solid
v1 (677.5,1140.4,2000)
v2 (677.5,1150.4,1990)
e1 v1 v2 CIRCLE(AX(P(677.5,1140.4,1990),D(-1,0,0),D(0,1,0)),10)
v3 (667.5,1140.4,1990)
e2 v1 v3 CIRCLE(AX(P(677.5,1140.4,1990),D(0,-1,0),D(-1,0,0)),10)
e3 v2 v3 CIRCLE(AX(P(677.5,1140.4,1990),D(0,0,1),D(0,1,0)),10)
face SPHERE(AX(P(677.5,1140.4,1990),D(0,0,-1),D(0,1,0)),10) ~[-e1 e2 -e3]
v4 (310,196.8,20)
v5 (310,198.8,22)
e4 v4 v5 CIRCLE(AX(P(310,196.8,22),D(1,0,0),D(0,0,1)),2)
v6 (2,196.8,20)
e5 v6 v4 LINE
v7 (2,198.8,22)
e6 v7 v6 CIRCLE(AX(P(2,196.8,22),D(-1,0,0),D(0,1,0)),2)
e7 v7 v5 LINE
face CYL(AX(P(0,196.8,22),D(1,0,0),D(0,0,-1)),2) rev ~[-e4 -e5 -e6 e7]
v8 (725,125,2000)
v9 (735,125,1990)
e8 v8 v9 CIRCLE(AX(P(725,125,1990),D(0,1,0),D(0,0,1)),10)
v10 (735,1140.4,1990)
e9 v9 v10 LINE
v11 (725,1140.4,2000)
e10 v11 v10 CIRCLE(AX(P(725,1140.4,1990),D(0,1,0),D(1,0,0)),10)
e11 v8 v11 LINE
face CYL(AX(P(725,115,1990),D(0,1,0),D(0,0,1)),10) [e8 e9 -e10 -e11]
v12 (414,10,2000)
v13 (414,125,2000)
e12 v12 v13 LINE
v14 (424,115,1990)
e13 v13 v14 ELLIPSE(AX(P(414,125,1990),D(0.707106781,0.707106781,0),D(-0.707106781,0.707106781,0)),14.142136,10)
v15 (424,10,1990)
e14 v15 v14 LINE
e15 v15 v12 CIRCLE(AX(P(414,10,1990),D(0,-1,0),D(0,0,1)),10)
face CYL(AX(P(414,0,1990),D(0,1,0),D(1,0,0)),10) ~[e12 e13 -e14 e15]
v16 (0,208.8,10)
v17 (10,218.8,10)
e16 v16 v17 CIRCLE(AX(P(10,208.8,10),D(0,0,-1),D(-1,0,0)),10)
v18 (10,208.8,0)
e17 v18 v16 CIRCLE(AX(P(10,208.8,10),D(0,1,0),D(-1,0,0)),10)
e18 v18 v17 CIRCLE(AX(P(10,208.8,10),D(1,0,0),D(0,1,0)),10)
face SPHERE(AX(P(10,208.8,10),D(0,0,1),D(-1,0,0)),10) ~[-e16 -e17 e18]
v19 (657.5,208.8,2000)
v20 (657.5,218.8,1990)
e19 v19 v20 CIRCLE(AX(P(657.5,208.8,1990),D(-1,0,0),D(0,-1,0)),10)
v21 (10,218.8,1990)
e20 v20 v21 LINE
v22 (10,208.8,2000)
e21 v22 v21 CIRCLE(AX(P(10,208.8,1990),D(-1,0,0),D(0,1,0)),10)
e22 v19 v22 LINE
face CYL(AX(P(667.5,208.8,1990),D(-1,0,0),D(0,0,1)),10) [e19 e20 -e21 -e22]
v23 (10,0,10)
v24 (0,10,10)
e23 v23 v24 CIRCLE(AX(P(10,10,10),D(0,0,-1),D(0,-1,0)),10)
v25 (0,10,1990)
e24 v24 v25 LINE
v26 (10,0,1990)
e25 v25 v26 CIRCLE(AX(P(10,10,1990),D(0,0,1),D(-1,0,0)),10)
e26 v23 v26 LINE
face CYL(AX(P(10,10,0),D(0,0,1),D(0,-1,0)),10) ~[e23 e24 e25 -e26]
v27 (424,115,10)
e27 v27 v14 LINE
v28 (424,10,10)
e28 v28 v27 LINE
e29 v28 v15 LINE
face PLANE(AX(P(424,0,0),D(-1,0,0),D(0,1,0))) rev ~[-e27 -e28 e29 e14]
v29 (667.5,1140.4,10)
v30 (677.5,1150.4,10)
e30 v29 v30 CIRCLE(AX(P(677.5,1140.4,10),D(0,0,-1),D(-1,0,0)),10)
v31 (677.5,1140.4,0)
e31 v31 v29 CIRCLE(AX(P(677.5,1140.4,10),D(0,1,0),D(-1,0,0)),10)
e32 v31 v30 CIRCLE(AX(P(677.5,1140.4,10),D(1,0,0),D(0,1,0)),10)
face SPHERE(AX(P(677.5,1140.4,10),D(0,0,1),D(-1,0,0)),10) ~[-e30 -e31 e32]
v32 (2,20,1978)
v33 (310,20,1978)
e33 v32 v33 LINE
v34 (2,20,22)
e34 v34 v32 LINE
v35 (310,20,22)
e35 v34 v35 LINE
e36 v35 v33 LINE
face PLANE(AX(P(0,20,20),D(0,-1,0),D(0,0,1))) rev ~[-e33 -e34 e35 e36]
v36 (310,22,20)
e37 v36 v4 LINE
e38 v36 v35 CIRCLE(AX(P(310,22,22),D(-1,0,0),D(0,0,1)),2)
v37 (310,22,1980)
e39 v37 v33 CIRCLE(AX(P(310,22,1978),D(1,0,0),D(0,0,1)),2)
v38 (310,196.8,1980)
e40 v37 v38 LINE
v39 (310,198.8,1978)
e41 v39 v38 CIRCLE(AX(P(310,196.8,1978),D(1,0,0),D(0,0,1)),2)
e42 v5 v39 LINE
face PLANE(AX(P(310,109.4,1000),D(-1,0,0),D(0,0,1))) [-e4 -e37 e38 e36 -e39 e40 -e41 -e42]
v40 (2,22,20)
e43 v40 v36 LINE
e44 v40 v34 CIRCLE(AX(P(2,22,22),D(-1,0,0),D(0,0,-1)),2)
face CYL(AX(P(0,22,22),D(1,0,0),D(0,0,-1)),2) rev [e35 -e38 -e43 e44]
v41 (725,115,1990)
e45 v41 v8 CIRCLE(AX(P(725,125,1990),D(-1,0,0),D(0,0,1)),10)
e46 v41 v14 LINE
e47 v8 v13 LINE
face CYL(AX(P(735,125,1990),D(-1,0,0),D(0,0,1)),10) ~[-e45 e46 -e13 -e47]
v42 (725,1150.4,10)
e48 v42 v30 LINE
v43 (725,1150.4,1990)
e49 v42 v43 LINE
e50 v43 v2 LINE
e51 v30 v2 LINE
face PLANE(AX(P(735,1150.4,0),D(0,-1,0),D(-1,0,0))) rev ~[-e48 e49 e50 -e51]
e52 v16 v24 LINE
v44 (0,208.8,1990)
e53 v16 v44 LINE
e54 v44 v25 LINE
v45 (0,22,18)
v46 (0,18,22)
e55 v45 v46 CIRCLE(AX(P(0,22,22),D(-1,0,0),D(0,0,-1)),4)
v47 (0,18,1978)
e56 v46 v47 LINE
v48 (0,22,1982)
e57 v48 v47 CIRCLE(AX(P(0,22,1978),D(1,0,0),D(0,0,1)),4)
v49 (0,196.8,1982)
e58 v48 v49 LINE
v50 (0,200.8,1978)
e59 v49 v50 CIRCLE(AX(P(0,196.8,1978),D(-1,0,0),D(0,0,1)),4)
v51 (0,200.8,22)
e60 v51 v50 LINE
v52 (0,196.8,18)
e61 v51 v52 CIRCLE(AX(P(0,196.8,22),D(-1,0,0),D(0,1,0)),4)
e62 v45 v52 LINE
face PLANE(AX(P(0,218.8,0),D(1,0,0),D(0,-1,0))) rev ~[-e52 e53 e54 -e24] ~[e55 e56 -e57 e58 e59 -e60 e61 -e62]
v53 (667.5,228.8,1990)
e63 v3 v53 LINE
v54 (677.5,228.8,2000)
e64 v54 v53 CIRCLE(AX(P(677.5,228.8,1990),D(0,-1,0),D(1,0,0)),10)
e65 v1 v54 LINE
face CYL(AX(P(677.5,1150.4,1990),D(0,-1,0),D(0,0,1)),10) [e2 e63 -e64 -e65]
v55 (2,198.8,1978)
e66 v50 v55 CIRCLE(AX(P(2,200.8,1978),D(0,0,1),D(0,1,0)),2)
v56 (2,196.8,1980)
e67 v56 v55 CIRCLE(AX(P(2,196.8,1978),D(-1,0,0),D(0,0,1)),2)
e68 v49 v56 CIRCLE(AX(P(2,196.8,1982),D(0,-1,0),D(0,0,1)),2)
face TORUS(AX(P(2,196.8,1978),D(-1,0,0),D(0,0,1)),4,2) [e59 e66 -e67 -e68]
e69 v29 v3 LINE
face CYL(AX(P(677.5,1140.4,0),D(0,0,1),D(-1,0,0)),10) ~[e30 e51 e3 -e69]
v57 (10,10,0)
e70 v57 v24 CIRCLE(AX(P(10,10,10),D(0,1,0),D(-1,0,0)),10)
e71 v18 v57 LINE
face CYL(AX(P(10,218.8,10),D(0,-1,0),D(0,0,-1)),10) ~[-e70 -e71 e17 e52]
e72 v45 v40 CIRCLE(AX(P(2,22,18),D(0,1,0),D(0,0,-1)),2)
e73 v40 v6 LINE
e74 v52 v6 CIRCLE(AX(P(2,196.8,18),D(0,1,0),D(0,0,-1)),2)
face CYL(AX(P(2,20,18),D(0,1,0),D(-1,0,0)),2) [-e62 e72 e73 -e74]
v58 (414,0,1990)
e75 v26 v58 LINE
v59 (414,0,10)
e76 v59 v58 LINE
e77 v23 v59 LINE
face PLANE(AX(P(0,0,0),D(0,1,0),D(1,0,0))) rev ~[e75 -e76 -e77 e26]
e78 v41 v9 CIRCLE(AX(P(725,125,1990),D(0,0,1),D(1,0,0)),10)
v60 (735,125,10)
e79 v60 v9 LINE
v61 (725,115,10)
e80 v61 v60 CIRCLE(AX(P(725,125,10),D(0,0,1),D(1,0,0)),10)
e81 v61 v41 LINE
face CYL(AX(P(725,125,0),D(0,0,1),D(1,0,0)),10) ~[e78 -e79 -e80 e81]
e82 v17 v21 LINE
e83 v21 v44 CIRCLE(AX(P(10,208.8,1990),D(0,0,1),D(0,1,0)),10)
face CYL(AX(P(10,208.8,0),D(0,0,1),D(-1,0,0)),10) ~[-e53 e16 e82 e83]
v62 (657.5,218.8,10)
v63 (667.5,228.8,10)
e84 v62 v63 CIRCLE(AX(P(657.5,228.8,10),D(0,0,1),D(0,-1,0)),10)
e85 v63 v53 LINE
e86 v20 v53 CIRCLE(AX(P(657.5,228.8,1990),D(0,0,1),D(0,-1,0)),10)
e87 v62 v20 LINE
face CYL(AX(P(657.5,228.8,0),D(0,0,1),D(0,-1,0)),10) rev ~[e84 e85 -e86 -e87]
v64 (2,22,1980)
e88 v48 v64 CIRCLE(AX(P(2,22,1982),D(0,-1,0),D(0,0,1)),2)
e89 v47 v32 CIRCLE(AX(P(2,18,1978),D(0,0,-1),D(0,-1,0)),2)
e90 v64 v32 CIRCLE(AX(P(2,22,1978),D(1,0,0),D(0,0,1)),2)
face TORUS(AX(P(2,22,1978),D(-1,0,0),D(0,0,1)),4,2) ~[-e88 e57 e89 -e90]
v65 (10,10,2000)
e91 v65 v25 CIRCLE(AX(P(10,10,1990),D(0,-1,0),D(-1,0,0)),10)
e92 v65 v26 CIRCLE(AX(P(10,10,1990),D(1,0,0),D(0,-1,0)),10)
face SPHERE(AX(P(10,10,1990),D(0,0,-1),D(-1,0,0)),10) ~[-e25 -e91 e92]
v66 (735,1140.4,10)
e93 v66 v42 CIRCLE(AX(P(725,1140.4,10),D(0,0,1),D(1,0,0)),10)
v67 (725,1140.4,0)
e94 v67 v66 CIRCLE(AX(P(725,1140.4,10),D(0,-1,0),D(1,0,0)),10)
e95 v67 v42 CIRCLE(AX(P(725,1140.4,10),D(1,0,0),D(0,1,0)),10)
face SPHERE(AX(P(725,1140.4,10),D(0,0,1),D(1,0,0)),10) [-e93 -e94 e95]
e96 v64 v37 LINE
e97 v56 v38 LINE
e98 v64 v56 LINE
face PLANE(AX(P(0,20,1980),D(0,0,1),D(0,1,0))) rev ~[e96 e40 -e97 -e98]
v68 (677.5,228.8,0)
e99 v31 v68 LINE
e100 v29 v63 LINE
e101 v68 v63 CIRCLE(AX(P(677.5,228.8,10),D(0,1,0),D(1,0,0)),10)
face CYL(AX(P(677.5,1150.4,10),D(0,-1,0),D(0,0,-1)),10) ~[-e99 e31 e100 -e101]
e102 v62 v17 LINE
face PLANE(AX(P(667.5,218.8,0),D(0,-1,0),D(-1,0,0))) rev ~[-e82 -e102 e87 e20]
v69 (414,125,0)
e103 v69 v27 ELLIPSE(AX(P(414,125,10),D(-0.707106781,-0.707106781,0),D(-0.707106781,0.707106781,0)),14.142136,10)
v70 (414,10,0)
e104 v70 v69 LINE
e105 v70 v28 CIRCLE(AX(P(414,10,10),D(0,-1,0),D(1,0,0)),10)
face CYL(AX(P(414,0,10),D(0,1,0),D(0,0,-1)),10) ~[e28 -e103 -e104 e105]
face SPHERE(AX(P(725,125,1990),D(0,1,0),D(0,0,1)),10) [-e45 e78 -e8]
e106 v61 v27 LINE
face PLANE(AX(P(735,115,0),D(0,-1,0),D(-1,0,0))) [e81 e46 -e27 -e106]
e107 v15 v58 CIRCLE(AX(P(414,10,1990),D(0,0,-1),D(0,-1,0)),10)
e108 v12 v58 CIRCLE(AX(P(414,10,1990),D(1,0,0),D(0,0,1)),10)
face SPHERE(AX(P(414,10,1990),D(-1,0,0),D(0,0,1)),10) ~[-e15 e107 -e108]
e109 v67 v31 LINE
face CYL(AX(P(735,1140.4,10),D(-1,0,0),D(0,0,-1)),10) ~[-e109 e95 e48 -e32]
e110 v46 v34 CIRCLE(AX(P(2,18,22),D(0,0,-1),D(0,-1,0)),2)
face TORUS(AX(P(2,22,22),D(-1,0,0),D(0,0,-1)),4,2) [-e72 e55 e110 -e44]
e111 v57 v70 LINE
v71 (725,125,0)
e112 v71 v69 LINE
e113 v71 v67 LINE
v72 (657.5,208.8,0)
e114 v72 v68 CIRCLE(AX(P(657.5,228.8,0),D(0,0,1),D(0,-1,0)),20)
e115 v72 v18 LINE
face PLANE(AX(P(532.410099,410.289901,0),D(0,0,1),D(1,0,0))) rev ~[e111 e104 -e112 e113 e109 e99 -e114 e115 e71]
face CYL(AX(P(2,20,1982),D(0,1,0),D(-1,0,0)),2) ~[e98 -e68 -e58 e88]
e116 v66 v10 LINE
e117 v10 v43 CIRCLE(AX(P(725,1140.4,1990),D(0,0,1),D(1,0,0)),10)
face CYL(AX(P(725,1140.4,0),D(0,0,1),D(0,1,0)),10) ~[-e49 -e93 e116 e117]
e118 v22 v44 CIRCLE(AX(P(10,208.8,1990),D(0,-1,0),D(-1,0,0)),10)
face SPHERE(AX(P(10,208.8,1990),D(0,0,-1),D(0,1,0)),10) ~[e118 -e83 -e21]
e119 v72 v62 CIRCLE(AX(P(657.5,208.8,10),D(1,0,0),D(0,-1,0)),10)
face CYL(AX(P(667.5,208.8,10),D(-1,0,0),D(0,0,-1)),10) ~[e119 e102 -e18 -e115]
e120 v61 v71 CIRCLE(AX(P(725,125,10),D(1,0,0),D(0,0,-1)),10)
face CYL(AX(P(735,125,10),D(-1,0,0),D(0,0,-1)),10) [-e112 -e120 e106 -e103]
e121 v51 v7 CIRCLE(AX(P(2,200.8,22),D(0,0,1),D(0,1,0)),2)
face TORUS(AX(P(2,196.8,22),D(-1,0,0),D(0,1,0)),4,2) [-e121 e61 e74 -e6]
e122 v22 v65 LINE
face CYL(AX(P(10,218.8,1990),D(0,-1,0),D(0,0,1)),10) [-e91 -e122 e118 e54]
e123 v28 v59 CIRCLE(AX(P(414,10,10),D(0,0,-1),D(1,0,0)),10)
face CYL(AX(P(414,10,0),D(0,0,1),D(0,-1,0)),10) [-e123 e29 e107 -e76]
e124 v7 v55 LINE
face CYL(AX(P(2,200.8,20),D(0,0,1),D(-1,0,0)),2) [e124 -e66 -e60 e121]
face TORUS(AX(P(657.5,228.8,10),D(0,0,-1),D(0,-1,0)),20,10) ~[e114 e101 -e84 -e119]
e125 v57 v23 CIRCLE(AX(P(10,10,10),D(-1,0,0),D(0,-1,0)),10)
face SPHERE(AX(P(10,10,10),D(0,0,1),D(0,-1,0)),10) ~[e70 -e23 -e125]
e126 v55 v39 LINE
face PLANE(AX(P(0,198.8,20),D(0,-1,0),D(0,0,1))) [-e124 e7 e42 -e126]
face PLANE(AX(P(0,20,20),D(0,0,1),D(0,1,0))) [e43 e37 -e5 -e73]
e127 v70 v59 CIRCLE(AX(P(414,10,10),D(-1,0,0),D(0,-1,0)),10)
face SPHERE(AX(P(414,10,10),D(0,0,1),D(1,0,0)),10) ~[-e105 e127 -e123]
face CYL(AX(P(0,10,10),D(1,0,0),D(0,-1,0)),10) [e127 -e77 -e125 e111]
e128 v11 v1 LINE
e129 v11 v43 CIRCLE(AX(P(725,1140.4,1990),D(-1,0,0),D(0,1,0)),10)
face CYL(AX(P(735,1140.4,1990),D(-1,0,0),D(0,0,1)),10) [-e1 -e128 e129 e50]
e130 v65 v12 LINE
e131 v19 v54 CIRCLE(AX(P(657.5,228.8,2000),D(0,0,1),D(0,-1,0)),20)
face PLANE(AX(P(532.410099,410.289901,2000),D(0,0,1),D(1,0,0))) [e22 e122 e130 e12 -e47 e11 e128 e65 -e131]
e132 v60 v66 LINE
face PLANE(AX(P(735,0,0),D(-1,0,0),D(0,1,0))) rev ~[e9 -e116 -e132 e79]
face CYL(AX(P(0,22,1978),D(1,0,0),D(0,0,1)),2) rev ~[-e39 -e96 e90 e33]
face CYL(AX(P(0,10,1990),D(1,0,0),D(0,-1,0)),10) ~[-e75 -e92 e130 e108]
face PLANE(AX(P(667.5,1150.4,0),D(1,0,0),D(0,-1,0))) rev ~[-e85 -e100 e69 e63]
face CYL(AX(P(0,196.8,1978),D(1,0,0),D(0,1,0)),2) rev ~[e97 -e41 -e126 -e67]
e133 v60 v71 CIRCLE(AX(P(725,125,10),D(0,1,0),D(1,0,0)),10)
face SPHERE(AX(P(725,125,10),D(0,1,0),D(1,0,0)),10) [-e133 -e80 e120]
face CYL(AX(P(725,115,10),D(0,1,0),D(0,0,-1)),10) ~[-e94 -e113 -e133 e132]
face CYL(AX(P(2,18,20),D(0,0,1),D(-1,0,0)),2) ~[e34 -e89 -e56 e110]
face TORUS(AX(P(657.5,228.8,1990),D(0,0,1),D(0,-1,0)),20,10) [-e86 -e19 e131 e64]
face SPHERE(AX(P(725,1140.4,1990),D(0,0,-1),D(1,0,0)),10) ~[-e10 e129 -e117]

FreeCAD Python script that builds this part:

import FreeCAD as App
import Part
import Sketcher

V = App.Vector


def edges_at(feature, points):
    """Names of the edges that pass closest to the given points."""
    edges = feature.Shape.Edges
    near = lambda p: min(range(len(edges)), key=lambda i: edges[i].distToShape(Part.Vertex(*p))[0])
    return sorted({f"Edge{near(p) + 1}" for p in points})


def add_polygon(sketch, points):
    """Adds a closed chain of lines whose ends are joined by coincident constraints."""
    first, n = sketch.GeometryCount, len(points)
    for a, b in zip(points, points[1:] + points[:1]):
        sketch.addGeometry(Part.LineSegment(App.Vector(*a, 0), App.Vector(*b, 0)), False)
    for i in range(n):
        sketch.addConstraint(Sketcher.Constraint("Coincident", first + i, 2, first + (i + 1) % n, 1))

doc = App.newDocument("Part")
params = doc.addObject("Spreadsheet::Sheet", "Params")
for row, (alias, value) in enumerate([
    ("sketch1_width", "735 mm"),
    ("sketch1_width2", "67.5 mm"),
    ("sketch1_height", "1150.4 mm"),
    ("sketch1_height2", "931.6 mm"),
    ("pad1_length", "2000 mm"),
    ("sketch2_width", "311 mm"),
    ("sketch2_height", "115 mm"),
    ("sketch3_height", "1960 mm"),
    ("sketch3_width", "178.8 mm"),
    ("pocket2_length", "310 mm"),
    ("fillet_radius", "10 mm"),
    ("fillet2_radius", "2 mm"),
], start=1):
    params.set(f"A{row}", alias)
    params.set(f"B{row}", "=" + value)
    params.setAlias(f"B{row}", alias)

body = doc.addObject("PartDesign::Body", "Body")

sketch1 = body.newObject("Sketcher::SketchObject", "Sketch")
sketch1.AttachmentSupport = (doc.getObject("XY_Plane"), [""])
sketch1.MapMode = "FlatFace"
add_polygon(sketch1, [(0, 0), (735, 0), (735, 1150), (668, 1150), (668, 219), (0, 219)])
sketch1.addConstraint([
    Sketcher.Constraint("Horizontal", 0),
    Sketcher.Constraint("Vertical", 1),
    Sketcher.Constraint("Horizontal", 2),
    Sketcher.Constraint("Vertical", 3),
    Sketcher.Constraint("Horizontal", 4),
    Sketcher.Constraint("Vertical", 5),
    Sketcher.Constraint("Coincident", 5, 2, -1, 1),
    Sketcher.Constraint("DistanceX", 0, 1, 0, 2, 735.0),
    Sketcher.Constraint("DistanceX", 2, 2, 2, 1, 67.5),
    Sketcher.Constraint("DistanceY", 1, 1, 1, 2, 1150.4),
    Sketcher.Constraint("DistanceY", 3, 2, 3, 1, 931.6),
])
sketch1.setExpression("Constraints[13]", "Params.sketch1_width")
sketch1.setExpression("Constraints[14]", "Params.sketch1_width2")
sketch1.setExpression("Constraints[15]", "Params.sketch1_height")
sketch1.setExpression("Constraints[16]", "Params.sketch1_height2")
pad1 = body.newObject("PartDesign::Pad", "Pad")
pad1.Profile = sketch1
pad1.setExpression("Length", "Params.pad1_length")

sketch2 = body.newObject("Sketcher::SketchObject", "Sketch001")
sketch2.AttachmentSupport = (doc.getObject("XY_Plane"), [""])
sketch2.MapMode = "FlatFace"
add_polygon(sketch2, [(735, 115), (735, 0), (424, 0), (424, 115)])
sketch2.addConstraint([
    Sketcher.Constraint("Vertical", 0),
    Sketcher.Constraint("Horizontal", 1),
    Sketcher.Constraint("Vertical", 2),
    Sketcher.Constraint("Horizontal", 3),
    Sketcher.Constraint("PointOnObject", 0, 2, -1),
    Sketcher.Constraint("DistanceX", 1, 2, 1, 1, 311.0),
    Sketcher.Constraint("DistanceY", 0, 2, 0, 1, 115.0),
    Sketcher.Constraint("DistanceX", -1, 1, 0, 2, 735.0),
])
sketch2.setExpression("Constraints[9]", "Params.sketch2_width")
sketch2.setExpression("Constraints[10]", "Params.sketch2_height")
pocket1 = body.newObject("PartDesign::Pocket", "Pocket")
pocket1.Profile = sketch2
pocket1.Type = "UpToFirst"
pocket1.Reversed = True

sketch3 = body.newObject("Sketcher::SketchObject", "Sketch002")
sketch3.AttachmentSupport = (doc.getObject("YZ_Plane"), [""])
sketch3.MapMode = "FlatFace"
add_polygon(sketch3, [(199, 20), (20, 20), (20, 1980), (199, 1980)])
sketch3.addConstraint([
    Sketcher.Constraint("Horizontal", 0),
    Sketcher.Constraint("Vertical", 1),
    Sketcher.Constraint("Horizontal", 2),
    Sketcher.Constraint("Vertical", 3),
    Sketcher.Constraint("DistanceY", 1, 1, 1, 2, 1960.0),
    Sketcher.Constraint("DistanceX", 0, 2, 0, 1, 178.8),
    Sketcher.Constraint("DistanceX", -1, 1, 0, 2, 20.0),
    Sketcher.Constraint("DistanceY", -1, 1, 0, 2, 20.0),
])
sketch3.setExpression("Constraints[8]", "Params.sketch3_height")
sketch3.setExpression("Constraints[9]", "Params.sketch3_width")
pocket2 = body.newObject("PartDesign::Pocket", "Pocket001")
pocket2.Profile = sketch3
pocket2.setExpression("Length", "Params.pocket2_length")
pocket2.Reversed = True
doc.recompute()

fillet = body.newObject("PartDesign::Fillet", "Fillet")
fillet.Base = (pocket2, edges_at(pocket2, [
    (735, 1150.4, 1000),
    (0, 0, 1000),
    (0, 218.8, 1000),
    (667.5, 218.8, 1000),
    (667.5, 1150.4, 1000),
    (333.75, 218.8, 2000),
    (0, 109.4, 2000),
    (735, 632.7, 0),
    (212, 0, 2000),
    (735, 632.7, 2000),
    (579.5, 115, 2000),
    (735, 115, 1000),
    (424, 57.5, 2000),
    (424, 0, 1000),
    (424, 57.5, 0),
    (579.5, 115, 0),
    (701.25, 1150.4, 2000),
    (212, 0, 0),
    (0, 109.4, 0),
    (333.75, 218.8, 0),
    (667.5, 684.6, 0),
    (701.25, 1150.4, 0),
    (667.5, 684.6, 2000),
]))
fillet.setExpression("Radius", "Params.fillet_radius")
doc.recompute()

fillet2 = body.newObject("PartDesign::Fillet", "Fillet001")
fillet2.Base = (fillet, edges_at(fillet, [
    (155, 198.8, 1980),
    (155, 20, 1980),
    (155, 20, 20),
    (155, 198.8, 20),
    (0, 109.4, 1980),
    (0, 198.8, 1000),
    (0, 109.4, 20),
    (0, 20, 1000),
]))
fillet2.setExpression("Radius", "Params.fillet2_radius")

doc.recompute()
